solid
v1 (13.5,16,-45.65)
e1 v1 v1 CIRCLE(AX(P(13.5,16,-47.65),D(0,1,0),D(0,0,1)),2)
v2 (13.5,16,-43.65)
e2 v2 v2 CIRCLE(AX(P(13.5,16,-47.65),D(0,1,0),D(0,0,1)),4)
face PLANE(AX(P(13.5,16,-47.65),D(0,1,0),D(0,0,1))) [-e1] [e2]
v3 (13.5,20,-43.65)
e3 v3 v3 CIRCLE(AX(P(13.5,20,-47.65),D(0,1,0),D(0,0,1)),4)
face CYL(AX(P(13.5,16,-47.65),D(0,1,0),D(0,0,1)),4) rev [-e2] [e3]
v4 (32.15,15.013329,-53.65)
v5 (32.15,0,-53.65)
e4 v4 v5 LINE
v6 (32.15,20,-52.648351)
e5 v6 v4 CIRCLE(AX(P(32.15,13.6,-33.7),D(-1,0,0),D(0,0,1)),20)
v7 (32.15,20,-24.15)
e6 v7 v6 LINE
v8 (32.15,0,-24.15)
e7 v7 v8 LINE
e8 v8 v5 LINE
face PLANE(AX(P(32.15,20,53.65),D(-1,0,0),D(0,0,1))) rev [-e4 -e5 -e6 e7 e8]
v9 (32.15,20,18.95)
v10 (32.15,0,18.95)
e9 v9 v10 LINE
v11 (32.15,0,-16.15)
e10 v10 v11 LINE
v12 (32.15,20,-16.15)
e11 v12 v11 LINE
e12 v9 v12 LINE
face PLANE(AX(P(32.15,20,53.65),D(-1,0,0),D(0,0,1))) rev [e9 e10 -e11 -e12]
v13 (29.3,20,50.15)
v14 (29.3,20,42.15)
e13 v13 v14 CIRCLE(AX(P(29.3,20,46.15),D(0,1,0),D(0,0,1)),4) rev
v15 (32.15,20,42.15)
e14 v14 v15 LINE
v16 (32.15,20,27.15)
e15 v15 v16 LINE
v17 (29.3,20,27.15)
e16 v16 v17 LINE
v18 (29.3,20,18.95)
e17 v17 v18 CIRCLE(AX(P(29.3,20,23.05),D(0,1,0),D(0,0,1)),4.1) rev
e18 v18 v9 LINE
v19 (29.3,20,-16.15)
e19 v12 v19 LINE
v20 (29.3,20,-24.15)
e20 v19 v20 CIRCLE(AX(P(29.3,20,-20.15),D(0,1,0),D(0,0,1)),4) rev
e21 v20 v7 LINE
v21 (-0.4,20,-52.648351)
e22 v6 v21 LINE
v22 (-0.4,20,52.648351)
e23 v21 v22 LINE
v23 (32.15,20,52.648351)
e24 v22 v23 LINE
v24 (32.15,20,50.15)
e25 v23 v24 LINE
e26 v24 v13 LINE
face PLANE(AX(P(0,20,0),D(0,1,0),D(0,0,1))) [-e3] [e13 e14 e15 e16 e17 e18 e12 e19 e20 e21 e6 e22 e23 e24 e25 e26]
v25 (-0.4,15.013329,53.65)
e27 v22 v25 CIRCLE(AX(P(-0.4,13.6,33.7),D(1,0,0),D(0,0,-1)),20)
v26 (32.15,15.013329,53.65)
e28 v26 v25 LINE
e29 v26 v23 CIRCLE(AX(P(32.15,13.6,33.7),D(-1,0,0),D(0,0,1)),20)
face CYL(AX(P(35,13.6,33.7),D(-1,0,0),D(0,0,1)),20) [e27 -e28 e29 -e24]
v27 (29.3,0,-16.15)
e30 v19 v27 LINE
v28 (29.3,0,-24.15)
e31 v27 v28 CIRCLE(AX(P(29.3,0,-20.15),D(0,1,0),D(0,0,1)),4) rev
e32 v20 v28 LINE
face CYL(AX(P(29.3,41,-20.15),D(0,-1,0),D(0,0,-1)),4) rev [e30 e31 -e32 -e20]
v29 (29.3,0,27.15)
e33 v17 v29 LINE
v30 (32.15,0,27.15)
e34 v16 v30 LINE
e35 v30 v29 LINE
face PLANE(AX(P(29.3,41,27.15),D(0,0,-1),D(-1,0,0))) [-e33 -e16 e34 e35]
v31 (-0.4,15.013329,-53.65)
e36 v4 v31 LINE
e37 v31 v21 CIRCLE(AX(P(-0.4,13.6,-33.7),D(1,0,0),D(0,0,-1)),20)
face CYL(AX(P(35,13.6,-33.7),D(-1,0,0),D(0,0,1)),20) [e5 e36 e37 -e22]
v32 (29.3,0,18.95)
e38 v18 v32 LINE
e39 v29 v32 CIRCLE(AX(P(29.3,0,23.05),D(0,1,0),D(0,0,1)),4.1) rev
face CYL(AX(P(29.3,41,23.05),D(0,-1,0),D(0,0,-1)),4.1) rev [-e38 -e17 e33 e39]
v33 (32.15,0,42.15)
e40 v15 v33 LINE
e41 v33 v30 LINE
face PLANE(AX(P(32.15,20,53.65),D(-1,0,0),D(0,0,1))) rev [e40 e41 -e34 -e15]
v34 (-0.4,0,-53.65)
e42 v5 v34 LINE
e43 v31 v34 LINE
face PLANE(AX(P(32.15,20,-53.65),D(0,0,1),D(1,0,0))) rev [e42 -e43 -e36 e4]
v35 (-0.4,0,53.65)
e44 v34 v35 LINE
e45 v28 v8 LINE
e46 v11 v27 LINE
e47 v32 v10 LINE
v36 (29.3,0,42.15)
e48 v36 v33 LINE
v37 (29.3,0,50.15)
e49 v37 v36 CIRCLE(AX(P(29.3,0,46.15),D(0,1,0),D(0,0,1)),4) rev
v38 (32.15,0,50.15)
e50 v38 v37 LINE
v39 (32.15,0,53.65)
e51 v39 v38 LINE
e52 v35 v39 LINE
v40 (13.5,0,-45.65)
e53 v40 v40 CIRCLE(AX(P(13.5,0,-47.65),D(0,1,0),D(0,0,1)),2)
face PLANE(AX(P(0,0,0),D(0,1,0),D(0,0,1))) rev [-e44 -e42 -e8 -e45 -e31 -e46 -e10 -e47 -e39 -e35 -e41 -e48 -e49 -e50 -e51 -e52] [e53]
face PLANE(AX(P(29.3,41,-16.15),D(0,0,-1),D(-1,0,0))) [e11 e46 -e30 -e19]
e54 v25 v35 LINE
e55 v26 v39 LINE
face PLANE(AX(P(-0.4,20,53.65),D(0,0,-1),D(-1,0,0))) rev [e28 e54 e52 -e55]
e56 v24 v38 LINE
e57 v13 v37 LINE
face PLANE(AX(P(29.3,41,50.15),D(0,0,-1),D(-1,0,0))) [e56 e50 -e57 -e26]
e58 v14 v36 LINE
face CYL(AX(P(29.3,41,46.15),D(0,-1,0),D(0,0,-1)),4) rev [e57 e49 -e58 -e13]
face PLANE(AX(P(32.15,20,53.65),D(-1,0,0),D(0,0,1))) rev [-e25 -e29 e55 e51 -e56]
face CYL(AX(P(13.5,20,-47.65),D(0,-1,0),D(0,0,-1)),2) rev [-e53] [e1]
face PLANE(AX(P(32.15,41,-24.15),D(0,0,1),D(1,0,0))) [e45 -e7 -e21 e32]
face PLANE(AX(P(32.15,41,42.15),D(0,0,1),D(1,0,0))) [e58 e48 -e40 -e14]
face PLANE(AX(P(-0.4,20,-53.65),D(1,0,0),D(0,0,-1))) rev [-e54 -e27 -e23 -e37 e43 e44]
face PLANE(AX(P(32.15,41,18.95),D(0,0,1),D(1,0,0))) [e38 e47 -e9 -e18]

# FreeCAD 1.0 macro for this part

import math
import FreeCAD as App
import Part
import Sketcher
from FreeCAD import Vector


def add_polygon(sketch, points):
    """Adds a closed chain of lines whose ends are joined by coincident constraints."""
    first, n = sketch.GeometryCount, len(points)
    for a, b in zip(points, points[1:] + points[:1]):
        sketch.addGeometry(Part.LineSegment(App.Vector(*a, 0), App.Vector(*b, 0)), False)
    for i in range(n):
        sketch.addConstraint(Sketcher.Constraint("Coincident", first + i, 2, first + (i + 1) % n, 1))

doc = App.newDocument("Part")
body = doc.addObject("PartDesign::Body", "Body")

sketch1 = body.newObject("Sketcher::SketchObject", "Sketch")
sketch1.AttachmentSupport = (doc.getObject("XZ_Plane"), [""])
sketch1.MapMode = "FlatFace"
add_polygon(sketch1, [(-0.4, -53.6), (-0.4, 53.6), (32.1, 53.6), (32.1, -53.6)])
sketch1.addGeometry(Part.Circle(Vector(13.5, -47.6, 0), Vector(0, 0, 1), 2), False)
sketch1.addConstraint([
    Sketcher.Constraint("Vertical", 0),
    Sketcher.Constraint("Horizontal", 1),
    Sketcher.Constraint("Vertical", 2),
    Sketcher.Constraint("Horizontal", 3),
    Sketcher.Constraint("Diameter", 4, 4.0),
    Sketcher.Constraint("DistanceY", 0, 1, 0, 2, 107.3),
    Sketcher.Constraint("DistanceY", 2, 2, 4, 3, 6.0),
    Sketcher.Constraint("DistanceX", 1, 1, 1, 2, 32.55),
    Sketcher.Constraint("DistanceX", -1, 1, 4, 3, 13.5),
    Sketcher.Constraint("DistanceX", 0, 2, -1, 1, 0.4),
    Sketcher.Constraint("DistanceY", 4, 3, -1, 1, 47.65),
])
pad1 = body.newObject("PartDesign::Pad", "Pad")
pad1.Profile = sketch1
pad1.Length = 20
pad1.Reversed = True

sketch2 = body.newObject("Sketcher::SketchObject", "Sketch001")
sketch2.AttachmentSupport = (doc.getObject("YZ_Plane"), [""])
sketch2.MapMode = "FlatFace"
sketch2.addGeometry([
    Part.LineSegment(Vector(36.8, 53.6, 0), Vector(15, 53.6, 0)),
    Part.ArcOfCircle(Part.Circle(Vector(13.6, 33.7, 0), Vector(0, 0, 1), 20), math.radians(0), math.radians(86)),
    Part.LineSegment(Vector(33.6, 33.7, 0), Vector(36.8, 33.7, 0)),
    Part.LineSegment(Vector(36.8, 33.7, 0), Vector(36.8, 53.6, 0)),
], False)
sketch2.addConstraint([
    Sketcher.Constraint("Coincident", 0, 2, 1, 2),
    Sketcher.Constraint("Coincident", 1, 1, 2, 1),
    Sketcher.Constraint("Coincident", 2, 2, 3, 1),
    Sketcher.Constraint("Coincident", 3, 2, 0, 1),
    Sketcher.Constraint("Horizontal", 0),
    Sketcher.Constraint("Horizontal", 2),
    Sketcher.Constraint("Vertical", 3),
    Sketcher.Constraint("Radius", 1, 20.0),
    Sketcher.Constraint("DistanceY", 3, 1, 3, 2, 19.95),
    Sketcher.Constraint("DistanceX", -1, 1, 1, 3, 13.6),
    Sketcher.Constraint("DistanceY", -1, 1, 1, 3, 33.7),
    Sketcher.Constraint("DistanceY", -1, 1, 1, 1, 33.7),
    Sketcher.Constraint("DistanceX", 0, 2, 0, 1, 21.761753),
])
pocket1 = body.newObject("PartDesign::Pocket", "Pocket")
pocket1.Profile = sketch2
pocket1.Type = "ThroughAll"
pocket1.Midplane = True

sketch3 = body.newObject("Sketcher::SketchObject", "Sketch002")
sketch3.AttachmentSupport = (doc.getObject("YZ_Plane"), [""])
sketch3.MapMode = "FlatFace"
sketch3.addGeometry([
    Part.LineSegment(Vector(36.8, -33.7, 0), Vector(33.6, -33.7, 0)),
    Part.ArcOfCircle(Part.Circle(Vector(13.6, -33.7, 0), Vector(0, 0, 1), 20), math.radians(-86), math.radians(0)),
    Part.LineSegment(Vector(15, -53.6, 0), Vector(36.8, -53.6, 0)),
    Part.LineSegment(Vector(36.8, -53.6, 0), Vector(36.8, -33.7, 0)),
], False)
sketch3.addConstraint([
    Sketcher.Constraint("Coincident", 0, 2, 1, 2),
    Sketcher.Constraint("Coincident", 1, 1, 2, 1),
    Sketcher.Constraint("Coincident", 2, 2, 3, 1),
    Sketcher.Constraint("Coincident", 3, 2, 0, 1),
    Sketcher.Constraint("Horizontal", 0),
    Sketcher.Constraint("Horizontal", 2),
    Sketcher.Constraint("Vertical", 3),
    Sketcher.Constraint("Horizontal", 1, 3, 0, 2),
    Sketcher.Constraint("Radius", 1, 20.0),
    Sketcher.Constraint("DistanceY", 3, 1, 3, 2, 19.95),
    Sketcher.Constraint("DistanceX", -1, 1, 1, 3, 13.6),
    Sketcher.Constraint("DistanceY", 1, 3, -1, 1, 33.7),
    Sketcher.Constraint("DistanceX", 0, 2, 0, 1, 3.175082),
])
pocket2 = body.newObject("PartDesign::Pocket", "Pocket001")
pocket2.Profile = sketch3
pocket2.Type = "ThroughAll"
pocket2.Midplane = True

sketch4 = body.newObject("Sketcher::SketchObject", "Sketch003")
sketch4.AttachmentSupport = (doc.getObject("XZ_Plane"), [""])
sketch4.MapMode = "FlatFace"
sketch4.AttachmentOffset = App.Placement(Vector(0, 0, -20), App.Rotation())
sketch4.addGeometry(Part.Circle(Vector(13.5, -47.6, 0), Vector(0, 0, 1), 4), False)
sketch4.addConstraint([
    Sketcher.Constraint("Diameter", 0, 8.0),
    Sketcher.Constraint("DistanceX", -1, 1, 0, 3, 13.5),
    Sketcher.Constraint("DistanceY", 0, 3, -1, 1, 47.65),
])
pocket3 = body.newObject("PartDesign::Pocket", "Pocket002")
pocket3.Profile = sketch4
pocket3.Length = 4
pocket3.Reversed = True

sketch5 = body.newObject("Sketcher::SketchObject", "Sketch004")
sketch5.AttachmentSupport = (doc.getObject("XZ_Plane"), [""])
sketch5.MapMode = "FlatFace"
sketch5.AttachmentOffset = App.Placement(Vector(0, 0, -20), App.Rotation())
sketch5.addGeometry([
    Part.LineSegment(Vector(29.3, 27.1, 0), Vector(32.1, 27.1, 0)),
    Part.LineSegment(Vector(32.1, 27.1, 0), Vector(32.1, 42.1, 0)),
    Part.LineSegment(Vector(32.1, 42.1, 0), Vector(29.3, 42.1, 0)),
    Part.ArcOfCircle(Part.Circle(Vector(29.3, 46.1, 0), Vector(0, 0, 1), 4), math.radians(90), math.radians(270)),
    Part.LineSegment(Vector(29.3, 50.1, 0), Vector(32.1, 50.1, 0)),
    Part.LineSegment(Vector(32.1, 50.1, 0), Vector(32.1, 53.6, 0)),
    Part.LineSegment(Vector(32.1, 53.6, 0), Vector(50, 53.6, 0)),
    Part.LineSegment(Vector(50, 53.6, 0), Vector(50, -53.6, 0)),
    Part.LineSegment(Vector(50, -53.6, 0), Vector(32.1, -53.6, 0)),
    Part.LineSegment(Vector(32.1, -53.6, 0), Vector(32.1, -24.1, 0)),
    Part.LineSegment(Vector(32.1, -24.1, 0), Vector(29.3, -24.1, 0)),
    Part.ArcOfCircle(Part.Circle(Vector(29.3, -20.1, 0), Vector(0, 0, 1), 4), math.radians(90), math.radians(270)),
    Part.LineSegment(Vector(29.3, -16.1, 0), Vector(32.1, -16.1, 0)),
    Part.LineSegment(Vector(32.1, -16.1, 0), Vector(32.1, 18.9, 0)),
    Part.LineSegment(Vector(32.1, 18.9, 0), Vector(29.3, 18.9, 0)),
    Part.ArcOfCircle(Part.Circle(Vector(29.3, 23.1, 0), Vector(0, 0, 1), 4.1), math.radians(90), math.radians(270)),
], False)
sketch5.addConstraint([
    Sketcher.Constraint("Coincident", 0, 2, 1, 1),
    Sketcher.Constraint("Coincident", 1, 2, 2, 1),
    Sketcher.Constraint("Tangent", 2, 2, 3, 2),
    Sketcher.Constraint("Tangent", 3, 1, 4, 1),
    Sketcher.Constraint("Coincident", 4, 2, 5, 1),
    Sketcher.Constraint("Coincident", 5, 2, 6, 1),
    Sketcher.Constraint("Coincident", 6, 2, 7, 1),
    Sketcher.Constraint("Coincident", 7, 2, 8, 1),
    Sketcher.Constraint("Coincident", 8, 2, 9, 1),
    Sketcher.Constraint("Coincident", 9, 2, 10, 1),
    Sketcher.Constraint("Tangent", 10, 2, 11, 2),
    Sketcher.Constraint("Tangent", 11, 1, 12, 1),
    Sketcher.Constraint("Coincident", 12, 2, 13, 1),
    Sketcher.Constraint("Coincident", 13, 2, 14, 1),
    Sketcher.Constraint("Tangent", 14, 2, 15, 2),
    Sketcher.Constraint("Tangent", 15, 1, 0, 1),
    Sketcher.Constraint("Horizontal", 0),
    Sketcher.Constraint("Vertical", 1),
    Sketcher.Constraint("Horizontal", 2),
    Sketcher.Constraint("Horizontal", 4),
    Sketcher.Constraint("Vertical", 5),
    Sketcher.Constraint("Horizontal", 6),
    Sketcher.Constraint("Vertical", 7),
    Sketcher.Constraint("Horizontal", 8),
    Sketcher.Constraint("Vertical", 9),
    Sketcher.Constraint("Horizontal", 10),
    Sketcher.Constraint("Horizontal", 12),
    Sketcher.Constraint("Vertical", 13),
    Sketcher.Constraint("Horizontal", 14),
    Sketcher.Constraint("Equal", 3, 11),
    Sketcher.Constraint("Symmetric", 5, 2, 8, 2, -1),
    Sketcher.Constraint("Vertical", 3, 3, 11, 3),
    Sketcher.Constraint("Vertical", 11, 3, 15, 3),
    Sketcher.Constraint("Vertical", 1, 2, 4, 2),
    Sketcher.Constraint("Vertical", 9, 2, 12, 2),
    Sketcher.Constraint("Radius", 3, 4.0),
    Sketcher.Constraint("Radius", 15, 4.1),
    Sketcher.Constraint("DistanceY", 1, 1, 1, 2, 15.0),
    Sketcher.Constraint("DistanceY", 5, 1, 5, 2, 3.5),
    Sketcher.Constraint("DistanceY", 7, 2, 7, 1, 107.3),
    Sketcher.Constraint("DistanceY", 9, 1, 9, 2, 29.5),
    Sketcher.Constraint("DistanceX", -1, 1, 6, 2, 50.0),
    Sketcher.Constraint("DistanceX", 0, 1, 0, 2, 2.85),
    Sketcher.Constraint("DistanceX", 6, 1, 6, 2, 17.85),
])
pocket4 = body.newObject("PartDesign::Pocket", "Pocket003")
pocket4.Profile = sketch5
pocket4.Type = "ThroughAll"
pocket4.Midplane = True

doc.recompute()
